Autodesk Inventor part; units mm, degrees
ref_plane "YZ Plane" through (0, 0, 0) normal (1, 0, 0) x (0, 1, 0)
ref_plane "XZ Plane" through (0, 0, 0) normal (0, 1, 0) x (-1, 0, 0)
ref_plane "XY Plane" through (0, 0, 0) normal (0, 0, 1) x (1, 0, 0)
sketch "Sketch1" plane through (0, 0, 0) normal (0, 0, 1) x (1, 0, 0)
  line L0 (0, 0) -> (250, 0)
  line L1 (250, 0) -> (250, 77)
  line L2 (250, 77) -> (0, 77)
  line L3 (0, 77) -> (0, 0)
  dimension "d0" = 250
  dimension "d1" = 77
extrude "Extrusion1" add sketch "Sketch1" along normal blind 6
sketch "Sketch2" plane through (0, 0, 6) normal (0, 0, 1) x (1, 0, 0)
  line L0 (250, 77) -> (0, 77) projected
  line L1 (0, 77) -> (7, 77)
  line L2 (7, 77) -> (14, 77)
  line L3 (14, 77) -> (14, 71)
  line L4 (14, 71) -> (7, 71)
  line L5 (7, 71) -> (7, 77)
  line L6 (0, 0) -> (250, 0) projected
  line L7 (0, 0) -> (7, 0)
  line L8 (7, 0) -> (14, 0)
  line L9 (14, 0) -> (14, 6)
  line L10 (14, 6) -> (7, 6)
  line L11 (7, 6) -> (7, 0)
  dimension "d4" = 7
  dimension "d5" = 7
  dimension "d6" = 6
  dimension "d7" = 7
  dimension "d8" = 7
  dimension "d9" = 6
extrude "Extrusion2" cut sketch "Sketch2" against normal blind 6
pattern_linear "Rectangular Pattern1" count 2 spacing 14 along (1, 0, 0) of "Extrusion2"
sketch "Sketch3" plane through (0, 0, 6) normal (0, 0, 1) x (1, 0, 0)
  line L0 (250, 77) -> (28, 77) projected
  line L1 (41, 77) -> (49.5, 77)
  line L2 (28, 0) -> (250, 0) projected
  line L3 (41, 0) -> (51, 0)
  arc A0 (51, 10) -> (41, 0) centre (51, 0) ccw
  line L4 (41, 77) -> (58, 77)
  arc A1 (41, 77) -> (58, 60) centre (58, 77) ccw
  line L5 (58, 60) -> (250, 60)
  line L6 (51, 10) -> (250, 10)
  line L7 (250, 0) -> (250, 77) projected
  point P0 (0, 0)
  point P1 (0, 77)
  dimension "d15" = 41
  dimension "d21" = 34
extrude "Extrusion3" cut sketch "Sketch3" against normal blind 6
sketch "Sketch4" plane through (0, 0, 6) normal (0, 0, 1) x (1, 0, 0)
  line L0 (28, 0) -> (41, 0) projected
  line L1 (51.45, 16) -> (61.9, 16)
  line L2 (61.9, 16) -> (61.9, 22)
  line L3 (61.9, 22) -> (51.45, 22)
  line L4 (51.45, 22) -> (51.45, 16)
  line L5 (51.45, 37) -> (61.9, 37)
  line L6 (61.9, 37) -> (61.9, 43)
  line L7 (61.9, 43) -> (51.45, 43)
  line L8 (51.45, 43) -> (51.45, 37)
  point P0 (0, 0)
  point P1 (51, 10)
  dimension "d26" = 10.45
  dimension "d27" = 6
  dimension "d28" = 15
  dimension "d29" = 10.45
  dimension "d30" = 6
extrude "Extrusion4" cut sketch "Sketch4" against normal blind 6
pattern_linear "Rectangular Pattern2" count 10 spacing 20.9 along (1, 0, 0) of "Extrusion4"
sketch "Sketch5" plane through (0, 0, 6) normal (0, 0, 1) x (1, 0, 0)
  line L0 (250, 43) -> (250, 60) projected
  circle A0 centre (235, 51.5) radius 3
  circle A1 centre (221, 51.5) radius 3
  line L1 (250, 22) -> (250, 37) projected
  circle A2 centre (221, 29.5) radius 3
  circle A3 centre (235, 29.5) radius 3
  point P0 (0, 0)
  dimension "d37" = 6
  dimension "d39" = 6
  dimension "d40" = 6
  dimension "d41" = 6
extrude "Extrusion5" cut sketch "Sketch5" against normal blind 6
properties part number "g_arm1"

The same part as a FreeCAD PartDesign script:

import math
import FreeCAD as App
import Part
import Sketcher

V = App.Vector

doc = App.newDocument("Part")
body = doc.addObject("PartDesign::Body", "Body")

# Sketch on XY plane
sketch1 = body.newObject("Sketcher::SketchObject", "Sketch")
sketch1.AttachmentSupport = (doc.getObject("XY_Plane"), [""])
sketch1.MapMode = "FlatFace"
sketch1.addGeometry(Part.LineSegment(V(0, 77, 0), V(0, 0, 0)), False)
sketch1.addGeometry(Part.LineSegment(V(0, 0, 0), V(250, 0, 0)), False)
sketch1.addGeometry(Part.LineSegment(V(250, 0, 0), V(250, 77, 0)), False)
sketch1.addGeometry(Part.LineSegment(V(250, 77, 0), V(0, 77, 0)), False)
sketch1.addConstraint(Sketcher.Constraint("Coincident", 0, 2, 1, 1))
sketch1.addConstraint(Sketcher.Constraint("Coincident", 1, 2, 2, 1))
sketch1.addConstraint(Sketcher.Constraint("Coincident", 2, 2, 3, 1))
sketch1.addConstraint(Sketcher.Constraint("Coincident", 3, 2, 0, 1))
sketch1.addConstraint(Sketcher.Constraint("Vertical", 0))
sketch1.addConstraint(Sketcher.Constraint("Horizontal", 1))
sketch1.addConstraint(Sketcher.Constraint("Vertical", 2))
sketch1.addConstraint(Sketcher.Constraint("Horizontal", 3))
sketch1.addConstraint(Sketcher.Constraint("Coincident", 0, 2, -1, 1))
sketch1.addConstraint(Sketcher.Constraint("DistanceX", 1, 1, 1, 2, 250.0))
sketch1.addConstraint(Sketcher.Constraint("DistanceY", 0, 2, 0, 1, 77.0))
pad1 = body.newObject("PartDesign::Pad", "Pad")
pad1.Profile = sketch1
pad1.Length = 6

# Sketch on XY plane
sketch2 = body.newObject("Sketcher::SketchObject", "Sketch001")
sketch2.AttachmentSupport = (doc.getObject("XY_Plane"), [""])
sketch2.MapMode = "FlatFace"
sketch2.AttachmentOffset = App.Placement(V(0, 0, 6), App.Rotation())
sketch2.addGeometry(Part.LineSegment(V(14, 71, 0), V(14, 77, 0)), False)
sketch2.addGeometry(Part.LineSegment(V(14, 77, 0), V(7, 77, 0)), False)
sketch2.addGeometry(Part.LineSegment(V(7, 77, 0), V(7, 71, 0)), False)
sketch2.addGeometry(Part.LineSegment(V(7, 71, 0), V(14, 71, 0)), False)
sketch2.addGeometry(Part.LineSegment(V(7, 6, 0), V(7, 0, 0)), False)
sketch2.addGeometry(Part.LineSegment(V(7, 0, 0), V(14, 0, 0)), False)
sketch2.addGeometry(Part.LineSegment(V(14, 0, 0), V(14, 6, 0)), False)
sketch2.addGeometry(Part.LineSegment(V(14, 6, 0), V(7, 6, 0)), False)
sketch2.addConstraint(Sketcher.Constraint("Coincident", 0, 2, 1, 1))
sketch2.addConstraint(Sketcher.Constraint("Coincident", 1, 2, 2, 1))
sketch2.addConstraint(Sketcher.Constraint("Coincident", 2, 2, 3, 1))
sketch2.addConstraint(Sketcher.Constraint("Coincident", 3, 2, 0, 1))
sketch2.addConstraint(Sketcher.Constraint("Coincident", 4, 2, 5, 1))
sketch2.addConstraint(Sketcher.Constraint("Coincident", 5, 2, 6, 1))
sketch2.addConstraint(Sketcher.Constraint("Coincident", 6, 2, 7, 1))
sketch2.addConstraint(Sketcher.Constraint("Coincident", 7, 2, 4, 1))
sketch2.addConstraint(Sketcher.Constraint("Vertical", 0))
sketch2.addConstraint(Sketcher.Constraint("Horizontal", 1))
sketch2.addConstraint(Sketcher.Constraint("Vertical", 2))
sketch2.addConstraint(Sketcher.Constraint("Horizontal", 3))
sketch2.addConstraint(Sketcher.Constraint("Vertical", 4))
sketch2.addConstraint(Sketcher.Constraint("Horizontal", 5))
sketch2.addConstraint(Sketcher.Constraint("Vertical", 6))
sketch2.addConstraint(Sketcher.Constraint("Horizontal", 7))
sketch2.addConstraint(Sketcher.Constraint("PointOnObject", 4, 2, -1))
sketch2.addConstraint(Sketcher.Constraint("Vertical", 2, 2, 4, 2))
sketch2.addConstraint(Sketcher.Constraint("Vertical", 3, 2, 5, 2))
sketch2.addConstraint(Sketcher.Constraint("Equal", 2, 4))
sketch2.addConstraint(Sketcher.Constraint("DistanceX", 1, 2, 1, 1, 7.0))
sketch2.addConstraint(Sketcher.Constraint("DistanceY", 0, 1, 0, 2, 6.0))
sketch2.addConstraint(Sketcher.Constraint("DistanceX", -1, 1, 1, 2, 7.0))
sketch2.addConstraint(Sketcher.Constraint("DistanceY", -1, 1, 0, 2, 77.0))
pocket1 = body.newObject("PartDesign::Pocket", "Pocket")
pocket1.Profile = sketch2
pocket1.Length = 6
doc.recompute()

linearpattern = body.newObject("PartDesign::LinearPattern", "LinearPattern")
linearpattern.Originals = [pocket1]
linearpattern.Direction = (doc.getObject("X_Axis"), [""])
linearpattern.Mode = "offset"
linearpattern.Offset = 14
linearpattern.Occurrences = 2
body.Tip = linearpattern

# Sketch on XY plane
sketch3 = body.newObject("Sketcher::SketchObject", "Sketch002")
sketch3.AttachmentSupport = (doc.getObject("XY_Plane"), [""])
sketch3.MapMode = "FlatFace"
sketch3.AttachmentOffset = App.Placement(V(0, 0, 6), App.Rotation())
sketch3.addGeometry(Part.LineSegment(V(250, 60, 0), V(250, 77, 0)), False)
sketch3.addGeometry(Part.LineSegment(V(250, 77, 0), V(41, 77, 0)), False)
sketch3.addGeometry(Part.ArcOfCircle(Part.Circle(V(58, 77, 0), V(0, 0, 1), 17), math.radians(180), math.radians(270)), False)
sketch3.addGeometry(Part.LineSegment(V(58, 60, 0), V(250, 60, 0)), False)
sketch3.addGeometry(Part.LineSegment(V(250, 0, 0), V(250, 10, 0)), False)
sketch3.addGeometry(Part.LineSegment(V(250, 10, 0), V(51, 10, 0)), False)
sketch3.addGeometry(Part.ArcOfCircle(Part.Circle(V(51, 0, 0), V(0, 0, 1), 10), math.radians(90), math.radians(180)), False)
sketch3.addGeometry(Part.LineSegment(V(41, 0, 0), V(250, 0, 0)), False)
sketch3.addConstraint(Sketcher.Constraint("Coincident", 0, 2, 1, 1))
sketch3.addConstraint(Sketcher.Constraint("Coincident", 1, 2, 2, 1))
sketch3.addConstraint(Sketcher.Constraint("Tangent", 2, 2, 3, 1))
sketch3.addConstraint(Sketcher.Constraint("Coincident", 3, 2, 0, 1))
sketch3.addConstraint(Sketcher.Constraint("Coincident", 4, 2, 5, 1))
sketch3.addConstraint(Sketcher.Constraint("Tangent", 5, 2, 6, 1))
sketch3.addConstraint(Sketcher.Constraint("Coincident", 6, 2, 7, 1))
sketch3.addConstraint(Sketcher.Constraint("Coincident", 7, 2, 4, 1))
sketch3.addConstraint(Sketcher.Constraint("Vertical", 0))
sketch3.addConstraint(Sketcher.Constraint("Horizontal", 1))
sketch3.addConstraint(Sketcher.Constraint("Horizontal", 3))
sketch3.addConstraint(Sketcher.Constraint("Vertical", 4))
sketch3.addConstraint(Sketcher.Constraint("Horizontal", 5))
sketch3.addConstraint(Sketcher.Constraint("Horizontal", 7))
sketch3.addConstraint(Sketcher.Constraint("PointOnObject", 6, 3, -1))
sketch3.addConstraint(Sketcher.Constraint("PointOnObject", 6, 2, -1))
sketch3.addConstraint(Sketcher.Constraint("Horizontal", 2, 3, 0, 2))
sketch3.addConstraint(Sketcher.Constraint("Vertical", 3, 2, 4, 2))
sketch3.addConstraint(Sketcher.Constraint("Vertical", 1, 2, 6, 2))
sketch3.addConstraint(Sketcher.Constraint("Radius", 2, 17.0))
sketch3.addConstraint(Sketcher.Constraint("DistanceX", -1, 1, 1, 2, 41.0))
sketch3.addConstraint(Sketcher.Constraint("Radius", 6, 10.0))
sketch3.addConstraint(Sketcher.Constraint("DistanceX", 1, 2, 1, 1, 209.0))
sketch3.addConstraint(Sketcher.Constraint("DistanceY", -1, 1, 2, 3, 77.0))
pocket2 = body.newObject("PartDesign::Pocket", "Pocket001")
pocket2.Profile = sketch3
pocket2.Length = 6

# Sketch on XY plane
sketch4 = body.newObject("Sketcher::SketchObject", "Sketch003")
sketch4.AttachmentSupport = (doc.getObject("XY_Plane"), [""])
sketch4.MapMode = "FlatFace"
sketch4.AttachmentOffset = App.Placement(V(0, 0, 6), App.Rotation())
sketch4.addGeometry(Part.LineSegment(V(51.45, 22, 0), V(51.45, 16, 0)), False)
sketch4.addGeometry(Part.LineSegment(V(51.45, 16, 0), V(61.9, 16, 0)), False)
sketch4.addGeometry(Part.LineSegment(V(61.9, 16, 0), V(61.9, 22, 0)), False)
sketch4.addGeometry(Part.LineSegment(V(61.9, 22, 0), V(51.45, 22, 0)), False)
sketch4.addGeometry(Part.LineSegment(V(51.45, 43, 0), V(51.45, 37, 0)), False)
sketch4.addGeometry(Part.LineSegment(V(51.45, 37, 0), V(61.9, 37, 0)), False)
sketch4.addGeometry(Part.LineSegment(V(61.9, 37, 0), V(61.9, 43, 0)), False)
sketch4.addGeometry(Part.LineSegment(V(61.9, 43, 0), V(51.45, 43, 0)), False)
sketch4.addConstraint(Sketcher.Constraint("Coincident", 0, 2, 1, 1))
sketch4.addConstraint(Sketcher.Constraint("Coincident", 1, 2, 2, 1))
sketch4.addConstraint(Sketcher.Constraint("Coincident", 2, 2, 3, 1))
sketch4.addConstraint(Sketcher.Constraint("Coincident", 3, 2, 0, 1))
sketch4.addConstraint(Sketcher.Constraint("Coincident", 4, 2, 5, 1))
sketch4.addConstraint(Sketcher.Constraint("Coincident", 5, 2, 6, 1))
sketch4.addConstraint(Sketcher.Constraint("Coincident", 6, 2, 7, 1))
sketch4.addConstraint(Sketcher.Constraint("Coincident", 7, 2, 4, 1))
sketch4.addConstraint(Sketcher.Constraint("Vertical", 0))
sketch4.addConstraint(Sketcher.Constraint("Horizontal", 1))
sketch4.addConstraint(Sketcher.Constraint("Vertical", 2))
sketch4.addConstraint(Sketcher.Constraint("Horizontal", 3))
sketch4.addConstraint(Sketcher.Constraint("Vertical", 4))
sketch4.addConstraint(Sketcher.Constraint("Horizontal", 5))
sketch4.addConstraint(Sketcher.Constraint("Vertical", 6))
sketch4.addConstraint(Sketcher.Constraint("Horizontal", 7))
sketch4.addConstraint(Sketcher.Constraint("Vertical", 3, 2, 4, 2))
sketch4.addConstraint(Sketcher.Constraint("Vertical", 2, 2, 5, 2))
sketch4.addConstraint(Sketcher.Constraint("Equal", 2, 4))
sketch4.addConstraint(Sketcher.Constraint("DistanceY", 0, 2, 0, 1, 6.0))
sketch4.addConstraint(Sketcher.Constraint("DistanceY", 3, 2, 4, 2, 15.0))
sketch4.addConstraint(Sketcher.Constraint("DistanceX", 1, 1, 1, 2, 10.45))
sketch4.addConstraint(Sketcher.Constraint("DistanceY", -1, 1, 0, 2, 16.0))
sketch4.addConstraint(Sketcher.Constraint("DistanceX", -1, 1, 1, 2, 61.9))
pocket3 = body.newObject("PartDesign::Pocket", "Pocket002")
pocket3.Profile = sketch4
pocket3.Length = 6
doc.recompute()

linearpattern2 = body.newObject("PartDesign::LinearPattern", "LinearPattern001")
linearpattern2.Originals = [pocket3]
linearpattern2.Direction = (doc.getObject("X_Axis"), [""])
linearpattern2.Mode = "offset"
linearpattern2.Offset = 20.9
linearpattern2.Occurrences = 10
body.Tip = linearpattern2

# Sketch on XY plane
sketch5 = body.newObject("Sketcher::SketchObject", "Sketch004")
sketch5.AttachmentSupport = (doc.getObject("XY_Plane"), [""])
sketch5.MapMode = "FlatFace"
sketch5.AttachmentOffset = App.Placement(V(0, 0, 6), App.Rotation())
sketch5.addGeometry(Part.Circle(V(235, 51.5, 0), V(0, 0, 1), 3), False)
sketch5.addGeometry(Part.Circle(V(221, 51.5, 0), V(0, 0, 1), 3), False)
sketch5.addGeometry(Part.Circle(V(221, 29.5, 0), V(0, 0, 1), 3), False)
sketch5.addGeometry(Part.Circle(V(235, 29.5, 0), V(0, 0, 1), 3), False)
sketch5.addConstraint(Sketcher.Constraint("Equal", 0, 1))
sketch5.addConstraint(Sketcher.Constraint("Equal", 1, 2))
sketch5.addConstraint(Sketcher.Constraint("Equal", 2, 3))
sketch5.addConstraint(Sketcher.Constraint("Horizontal", 0, 3, 1, 3))
sketch5.addConstraint(Sketcher.Constraint("Horizontal", 2, 3, 3, 3))
sketch5.addConstraint(Sketcher.Constraint("Vertical", 1, 3, 2, 3))
sketch5.addConstraint(Sketcher.Constraint("Vertical", 0, 3, 3, 3))
sketch5.addConstraint(Sketcher.Constraint("Diameter", 0, 6.0))
sketch5.addConstraint(Sketcher.Constraint("DistanceX", -1, 1, 0, 3, 235.0))
sketch5.addConstraint(Sketcher.Constraint("DistanceX", -1, 1, 1, 3, 221.0))
sketch5.addConstraint(Sketcher.Constraint("DistanceY", 2, 3, 1, 3, 22.0))
sketch5.addConstraint(Sketcher.Constraint("DistanceY", -1, 1, 0, 3, 51.5))
pocket4 = body.newObject("PartDesign::Pocket", "Pocket003")
pocket4.Profile = sketch5
pocket4.Length = 6

doc.recompute()
